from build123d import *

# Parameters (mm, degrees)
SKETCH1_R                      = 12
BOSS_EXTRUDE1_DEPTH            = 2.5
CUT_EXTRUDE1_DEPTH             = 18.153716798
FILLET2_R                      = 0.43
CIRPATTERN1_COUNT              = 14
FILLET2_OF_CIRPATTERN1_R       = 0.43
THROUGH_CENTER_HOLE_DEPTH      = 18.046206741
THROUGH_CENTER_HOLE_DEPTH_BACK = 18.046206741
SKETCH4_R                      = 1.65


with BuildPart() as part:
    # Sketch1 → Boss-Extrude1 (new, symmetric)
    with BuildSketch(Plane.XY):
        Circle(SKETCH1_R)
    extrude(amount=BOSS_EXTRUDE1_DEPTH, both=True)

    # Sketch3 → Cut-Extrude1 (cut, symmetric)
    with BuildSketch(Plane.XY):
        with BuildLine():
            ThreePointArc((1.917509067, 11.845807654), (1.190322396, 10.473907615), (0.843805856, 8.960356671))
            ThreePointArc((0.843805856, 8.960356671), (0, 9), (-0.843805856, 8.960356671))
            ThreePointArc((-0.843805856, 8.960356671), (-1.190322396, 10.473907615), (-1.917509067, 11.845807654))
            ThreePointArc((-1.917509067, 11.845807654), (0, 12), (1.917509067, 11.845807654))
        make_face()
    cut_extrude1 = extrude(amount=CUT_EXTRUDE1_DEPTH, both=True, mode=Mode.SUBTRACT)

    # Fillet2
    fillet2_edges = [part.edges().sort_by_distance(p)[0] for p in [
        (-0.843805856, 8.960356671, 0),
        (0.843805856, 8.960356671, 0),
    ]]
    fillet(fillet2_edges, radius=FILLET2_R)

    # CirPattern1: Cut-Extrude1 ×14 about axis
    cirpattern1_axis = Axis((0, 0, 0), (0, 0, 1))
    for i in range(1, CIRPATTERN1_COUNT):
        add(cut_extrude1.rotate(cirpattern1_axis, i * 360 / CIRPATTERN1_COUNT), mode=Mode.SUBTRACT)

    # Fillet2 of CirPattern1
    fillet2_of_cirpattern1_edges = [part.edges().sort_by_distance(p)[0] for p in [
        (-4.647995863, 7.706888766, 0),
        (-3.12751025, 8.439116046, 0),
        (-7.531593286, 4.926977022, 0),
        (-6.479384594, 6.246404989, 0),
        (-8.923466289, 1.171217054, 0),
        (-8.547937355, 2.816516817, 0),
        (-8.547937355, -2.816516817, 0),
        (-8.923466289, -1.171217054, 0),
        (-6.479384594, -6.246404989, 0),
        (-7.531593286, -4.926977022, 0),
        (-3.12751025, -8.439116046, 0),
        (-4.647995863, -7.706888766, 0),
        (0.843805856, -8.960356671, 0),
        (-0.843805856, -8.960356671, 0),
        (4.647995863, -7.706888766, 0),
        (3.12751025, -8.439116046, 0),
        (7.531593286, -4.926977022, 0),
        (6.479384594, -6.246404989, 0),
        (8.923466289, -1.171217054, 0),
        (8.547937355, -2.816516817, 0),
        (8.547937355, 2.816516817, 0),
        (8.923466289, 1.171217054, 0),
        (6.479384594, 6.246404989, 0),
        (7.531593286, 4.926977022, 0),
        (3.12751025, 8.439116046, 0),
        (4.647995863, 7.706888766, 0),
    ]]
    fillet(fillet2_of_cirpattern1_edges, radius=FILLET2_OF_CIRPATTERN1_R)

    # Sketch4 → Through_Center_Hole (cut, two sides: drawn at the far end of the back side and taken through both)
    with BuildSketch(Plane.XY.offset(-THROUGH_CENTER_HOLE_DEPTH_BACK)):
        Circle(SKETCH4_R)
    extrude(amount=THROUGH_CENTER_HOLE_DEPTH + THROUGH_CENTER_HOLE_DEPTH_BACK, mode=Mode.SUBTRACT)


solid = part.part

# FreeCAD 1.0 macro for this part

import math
import FreeCAD as App
import Part
import Sketcher


def edges_at(feature, points):
    """Names of the edges that pass closest to the given points."""
    edges = feature.Shape.Edges
    near = lambda p: min(range(len(edges)), key=lambda i: edges[i].distToShape(Part.Vertex(*p))[0])
    return sorted({f"Edge{near(p) + 1}" for p in points})

doc = App.newDocument("Part")
body = doc.addObject("PartDesign::Body", "Body")

# Sketch on XY plane
sketch1 = doc.addObject("Sketcher::SketchObject", "Sketch")
body.addObject(sketch1)
sketch1.AttachmentSupport = (doc.XY_Plane, [""])
sketch1.MapMode = "FlatFace"
sketch1.addGeometry(Part.Circle(App.Vector(0, 0, 0), App.Vector(0, 0, 1), 12), False)
sketch1.addConstraint([
    Sketcher.Constraint("Coincident", 0, 3, -1, 1),
    Sketcher.Constraint("Diameter", 0, 24.0),
])
pad1 = doc.addObject("PartDesign::Pad", "Pad")
body.addObject(pad1)
pad1.Profile = sketch1
pad1.Length = 5
pad1.Midplane = True

# Sketch on XY plane
sketch2 = doc.addObject("Sketcher::SketchObject", "Sketch001")
body.addObject(sketch2)
sketch2.AttachmentSupport = (doc.XY_Plane, [""])
sketch2.MapMode = "FlatFace"
sketch2.addGeometry([
    Part.ArcOfCircle(Part.Circle(App.Vector(6.8, 8.4, 0), App.Vector(0, 0, 1), 5.9), math.radians(145), math.radians(175)),
    Part.ArcOfCircle(Part.Circle(App.Vector(0, 0, 0), App.Vector(0, 0, 1), 12), math.radians(80.81), math.radians(99.19)),
    Part.ArcOfCircle(Part.Circle(App.Vector(-6.8, 8.4, 0), App.Vector(0, 0, 1), 5.9), math.radians(5), math.radians(35)),
    Part.ArcOfCircle(Part.Circle(App.Vector(0, 0, 0), App.Vector(0, 0, 1), 9), math.radians(84.62), math.radians(95.38)),
], False)
sketch2.addConstraint([
    Sketcher.Constraint("Coincident", 0, 1, 1, 1),
    Sketcher.Constraint("Coincident", 1, 2, 2, 2),
    Sketcher.Constraint("Coincident", 2, 1, 3, 2),
    Sketcher.Constraint("Coincident", 3, 1, 0, 2),
    Sketcher.Constraint("Coincident", 1, 3, -1, 1),
    Sketcher.Constraint("Coincident", 3, 3, -1, 1),
    Sketcher.Constraint("Equal", 0, 2),
    Sketcher.Constraint("Symmetric", 0, 3, 2, 3, -2),
    Sketcher.Constraint("Radius", 1, 12.0),
    Sketcher.Constraint("Radius", 3, 9.0),
    Sketcher.Constraint("Radius", 0, 5.935705),
    Sketcher.Constraint("DistanceX", -1, 1, 0, 1, 1.917509),
    Sketcher.Constraint("DistanceX", 2, 3, 0, 3, 13.506731),
])
pocket1 = doc.addObject("PartDesign::Pocket", "Pocket")
body.addObject(pocket1)
pocket1.Profile = sketch2
pocket1.Length = 36.307434
pocket1.Midplane = True
doc.recompute()

fillet = doc.addObject("PartDesign::Fillet", "Fillet")
body.addObject(fillet)
fillet.Base = (pocket1, edges_at(pocket1, [(-0.844, 8.96, 0), (0.844, 8.96, 0)]))
fillet.Radius = 0.43
doc.recompute()

polarpattern = doc.addObject("PartDesign::PolarPattern", "PolarPattern")
body.addObject(polarpattern)
polarpattern.Originals = [pocket1]
polarpattern.Axis = (doc.Z_Axis, [""])
polarpattern.Angle = 360
polarpattern.Occurrences = 14
body.Tip = polarpattern
doc.recompute()

fillet2 = doc.addObject("PartDesign::Fillet", "Fillet001")
body.addObject(fillet2)
fillet2.Base = (polarpattern, edges_at(polarpattern, [
    (-4.648, 7.707, 0),
    (-3.128, 8.439, 0),
    (-7.532, 4.927, 0),
    (-6.479, 6.246, 0),
    (-8.923, 1.171, 0),
    (-8.548, 2.817, 0),
    (-8.548, -2.817, 0),
    (-8.923, -1.171, 0),
    (-6.479, -6.246, 0),
    (-7.532, -4.927, 0),
    (-3.128, -8.439, 0),
    (-4.648, -7.707, 0),
    (0.844, -8.96, 0),
    (-0.844, -8.96, 0),
    (4.648, -7.707, 0),
    (3.128, -8.439, 0),
    (7.532, -4.927, 0),
    (6.479, -6.246, 0),
    (8.923, -1.171, 0),
    (8.548, -2.817, 0),
    (8.548, 2.817, 0),
    (8.923, 1.171, 0),
    (6.479, 6.246, 0),
    (7.532, 4.927, 0),
    (3.128, 8.439, 0),
    (4.648, 7.707, 0),
]))
fillet2.Radius = 0.43

# Sketch on XY plane
sketch3 = doc.addObject("Sketcher::SketchObject", "Sketch002")
body.addObject(sketch3)
sketch3.AttachmentSupport = (doc.XY_Plane, [""])
sketch3.MapMode = "FlatFace"
sketch3.addGeometry(Part.Circle(App.Vector(0, 0, 0), App.Vector(0, 0, 1), 1.6), False)
sketch3.addConstraint([
    Sketcher.Constraint("Coincident", 0, 3, -1, 1),
    Sketcher.Constraint("Diameter", 0, 3.3),
])
pocket2 = doc.addObject("PartDesign::Pocket", "Pocket001")
body.addObject(pocket2)
pocket2.Profile = sketch3
pocket2.Type = "ThroughAll"
pocket2.Midplane = True

doc.recompute()
